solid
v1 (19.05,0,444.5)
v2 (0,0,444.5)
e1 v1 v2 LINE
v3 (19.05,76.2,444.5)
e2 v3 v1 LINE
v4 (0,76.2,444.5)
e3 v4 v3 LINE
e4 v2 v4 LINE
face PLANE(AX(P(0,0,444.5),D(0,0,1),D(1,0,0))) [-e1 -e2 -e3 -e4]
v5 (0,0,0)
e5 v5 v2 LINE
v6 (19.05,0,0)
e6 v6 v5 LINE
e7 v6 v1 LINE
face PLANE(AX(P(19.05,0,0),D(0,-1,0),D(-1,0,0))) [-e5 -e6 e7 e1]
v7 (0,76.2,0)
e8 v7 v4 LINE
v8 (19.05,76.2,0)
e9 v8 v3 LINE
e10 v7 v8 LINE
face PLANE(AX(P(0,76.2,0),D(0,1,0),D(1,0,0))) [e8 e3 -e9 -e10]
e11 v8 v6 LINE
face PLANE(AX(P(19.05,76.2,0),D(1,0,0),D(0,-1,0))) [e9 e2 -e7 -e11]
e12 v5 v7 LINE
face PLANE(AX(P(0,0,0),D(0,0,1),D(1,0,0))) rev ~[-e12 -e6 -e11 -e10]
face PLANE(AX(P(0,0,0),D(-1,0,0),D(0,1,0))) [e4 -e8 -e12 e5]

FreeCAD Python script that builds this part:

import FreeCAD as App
import Part
import Sketcher

V = App.Vector
Q = App.Units.Quantity


def add_polygon(sketch, points):
    """Adds a closed chain of lines whose ends are joined by coincident constraints."""
    first, n = sketch.GeometryCount, len(points)
    for a, b in zip(points, points[1:] + points[:1]):
        sketch.addGeometry(Part.LineSegment(App.Vector(*a, 0), App.Vector(*b, 0)), False)
    for i in range(n):
        sketch.addConstraint(Sketcher.Constraint("Coincident", first + i, 2, first + (i + 1) % n, 1))

doc = App.newDocument("Part")
body = doc.addObject("PartDesign::Body", "Body")

# Sketch on XY plane
sketch1 = body.newObject("Sketcher::SketchObject", "Sketch")
sketch1.AttachmentSupport = (doc.getObject("XY_Plane"), [""])
sketch1.MapMode = "FlatFace"
add_polygon(sketch1, [(19, 76), (0, 76), (0, 0), (19, 0)])  # lines 0-3
sketch1.addConstraint(Sketcher.Constraint("Horizontal", 0))
sketch1.addConstraint(Sketcher.Constraint("Vertical", 1))
sketch1.addConstraint(Sketcher.Constraint("Horizontal", 2))
sketch1.addConstraint(Sketcher.Constraint("Vertical", 3))
sketch1.addConstraint(Sketcher.Constraint("Coincident", 1, 2, -1, 1))
sketch1.addConstraint(Sketcher.Constraint("DistanceY", 1, 2, 1, 1, Q("3 in")))
sketch1.addConstraint(Sketcher.Constraint("DistanceX", 0, 2, 0, 1, Q("0.75 in")))
pad1 = body.newObject("PartDesign::Pad", "Pad")
pad1.Profile = sketch1
pad1.Length = Q("17.5 in")

doc.recompute()
